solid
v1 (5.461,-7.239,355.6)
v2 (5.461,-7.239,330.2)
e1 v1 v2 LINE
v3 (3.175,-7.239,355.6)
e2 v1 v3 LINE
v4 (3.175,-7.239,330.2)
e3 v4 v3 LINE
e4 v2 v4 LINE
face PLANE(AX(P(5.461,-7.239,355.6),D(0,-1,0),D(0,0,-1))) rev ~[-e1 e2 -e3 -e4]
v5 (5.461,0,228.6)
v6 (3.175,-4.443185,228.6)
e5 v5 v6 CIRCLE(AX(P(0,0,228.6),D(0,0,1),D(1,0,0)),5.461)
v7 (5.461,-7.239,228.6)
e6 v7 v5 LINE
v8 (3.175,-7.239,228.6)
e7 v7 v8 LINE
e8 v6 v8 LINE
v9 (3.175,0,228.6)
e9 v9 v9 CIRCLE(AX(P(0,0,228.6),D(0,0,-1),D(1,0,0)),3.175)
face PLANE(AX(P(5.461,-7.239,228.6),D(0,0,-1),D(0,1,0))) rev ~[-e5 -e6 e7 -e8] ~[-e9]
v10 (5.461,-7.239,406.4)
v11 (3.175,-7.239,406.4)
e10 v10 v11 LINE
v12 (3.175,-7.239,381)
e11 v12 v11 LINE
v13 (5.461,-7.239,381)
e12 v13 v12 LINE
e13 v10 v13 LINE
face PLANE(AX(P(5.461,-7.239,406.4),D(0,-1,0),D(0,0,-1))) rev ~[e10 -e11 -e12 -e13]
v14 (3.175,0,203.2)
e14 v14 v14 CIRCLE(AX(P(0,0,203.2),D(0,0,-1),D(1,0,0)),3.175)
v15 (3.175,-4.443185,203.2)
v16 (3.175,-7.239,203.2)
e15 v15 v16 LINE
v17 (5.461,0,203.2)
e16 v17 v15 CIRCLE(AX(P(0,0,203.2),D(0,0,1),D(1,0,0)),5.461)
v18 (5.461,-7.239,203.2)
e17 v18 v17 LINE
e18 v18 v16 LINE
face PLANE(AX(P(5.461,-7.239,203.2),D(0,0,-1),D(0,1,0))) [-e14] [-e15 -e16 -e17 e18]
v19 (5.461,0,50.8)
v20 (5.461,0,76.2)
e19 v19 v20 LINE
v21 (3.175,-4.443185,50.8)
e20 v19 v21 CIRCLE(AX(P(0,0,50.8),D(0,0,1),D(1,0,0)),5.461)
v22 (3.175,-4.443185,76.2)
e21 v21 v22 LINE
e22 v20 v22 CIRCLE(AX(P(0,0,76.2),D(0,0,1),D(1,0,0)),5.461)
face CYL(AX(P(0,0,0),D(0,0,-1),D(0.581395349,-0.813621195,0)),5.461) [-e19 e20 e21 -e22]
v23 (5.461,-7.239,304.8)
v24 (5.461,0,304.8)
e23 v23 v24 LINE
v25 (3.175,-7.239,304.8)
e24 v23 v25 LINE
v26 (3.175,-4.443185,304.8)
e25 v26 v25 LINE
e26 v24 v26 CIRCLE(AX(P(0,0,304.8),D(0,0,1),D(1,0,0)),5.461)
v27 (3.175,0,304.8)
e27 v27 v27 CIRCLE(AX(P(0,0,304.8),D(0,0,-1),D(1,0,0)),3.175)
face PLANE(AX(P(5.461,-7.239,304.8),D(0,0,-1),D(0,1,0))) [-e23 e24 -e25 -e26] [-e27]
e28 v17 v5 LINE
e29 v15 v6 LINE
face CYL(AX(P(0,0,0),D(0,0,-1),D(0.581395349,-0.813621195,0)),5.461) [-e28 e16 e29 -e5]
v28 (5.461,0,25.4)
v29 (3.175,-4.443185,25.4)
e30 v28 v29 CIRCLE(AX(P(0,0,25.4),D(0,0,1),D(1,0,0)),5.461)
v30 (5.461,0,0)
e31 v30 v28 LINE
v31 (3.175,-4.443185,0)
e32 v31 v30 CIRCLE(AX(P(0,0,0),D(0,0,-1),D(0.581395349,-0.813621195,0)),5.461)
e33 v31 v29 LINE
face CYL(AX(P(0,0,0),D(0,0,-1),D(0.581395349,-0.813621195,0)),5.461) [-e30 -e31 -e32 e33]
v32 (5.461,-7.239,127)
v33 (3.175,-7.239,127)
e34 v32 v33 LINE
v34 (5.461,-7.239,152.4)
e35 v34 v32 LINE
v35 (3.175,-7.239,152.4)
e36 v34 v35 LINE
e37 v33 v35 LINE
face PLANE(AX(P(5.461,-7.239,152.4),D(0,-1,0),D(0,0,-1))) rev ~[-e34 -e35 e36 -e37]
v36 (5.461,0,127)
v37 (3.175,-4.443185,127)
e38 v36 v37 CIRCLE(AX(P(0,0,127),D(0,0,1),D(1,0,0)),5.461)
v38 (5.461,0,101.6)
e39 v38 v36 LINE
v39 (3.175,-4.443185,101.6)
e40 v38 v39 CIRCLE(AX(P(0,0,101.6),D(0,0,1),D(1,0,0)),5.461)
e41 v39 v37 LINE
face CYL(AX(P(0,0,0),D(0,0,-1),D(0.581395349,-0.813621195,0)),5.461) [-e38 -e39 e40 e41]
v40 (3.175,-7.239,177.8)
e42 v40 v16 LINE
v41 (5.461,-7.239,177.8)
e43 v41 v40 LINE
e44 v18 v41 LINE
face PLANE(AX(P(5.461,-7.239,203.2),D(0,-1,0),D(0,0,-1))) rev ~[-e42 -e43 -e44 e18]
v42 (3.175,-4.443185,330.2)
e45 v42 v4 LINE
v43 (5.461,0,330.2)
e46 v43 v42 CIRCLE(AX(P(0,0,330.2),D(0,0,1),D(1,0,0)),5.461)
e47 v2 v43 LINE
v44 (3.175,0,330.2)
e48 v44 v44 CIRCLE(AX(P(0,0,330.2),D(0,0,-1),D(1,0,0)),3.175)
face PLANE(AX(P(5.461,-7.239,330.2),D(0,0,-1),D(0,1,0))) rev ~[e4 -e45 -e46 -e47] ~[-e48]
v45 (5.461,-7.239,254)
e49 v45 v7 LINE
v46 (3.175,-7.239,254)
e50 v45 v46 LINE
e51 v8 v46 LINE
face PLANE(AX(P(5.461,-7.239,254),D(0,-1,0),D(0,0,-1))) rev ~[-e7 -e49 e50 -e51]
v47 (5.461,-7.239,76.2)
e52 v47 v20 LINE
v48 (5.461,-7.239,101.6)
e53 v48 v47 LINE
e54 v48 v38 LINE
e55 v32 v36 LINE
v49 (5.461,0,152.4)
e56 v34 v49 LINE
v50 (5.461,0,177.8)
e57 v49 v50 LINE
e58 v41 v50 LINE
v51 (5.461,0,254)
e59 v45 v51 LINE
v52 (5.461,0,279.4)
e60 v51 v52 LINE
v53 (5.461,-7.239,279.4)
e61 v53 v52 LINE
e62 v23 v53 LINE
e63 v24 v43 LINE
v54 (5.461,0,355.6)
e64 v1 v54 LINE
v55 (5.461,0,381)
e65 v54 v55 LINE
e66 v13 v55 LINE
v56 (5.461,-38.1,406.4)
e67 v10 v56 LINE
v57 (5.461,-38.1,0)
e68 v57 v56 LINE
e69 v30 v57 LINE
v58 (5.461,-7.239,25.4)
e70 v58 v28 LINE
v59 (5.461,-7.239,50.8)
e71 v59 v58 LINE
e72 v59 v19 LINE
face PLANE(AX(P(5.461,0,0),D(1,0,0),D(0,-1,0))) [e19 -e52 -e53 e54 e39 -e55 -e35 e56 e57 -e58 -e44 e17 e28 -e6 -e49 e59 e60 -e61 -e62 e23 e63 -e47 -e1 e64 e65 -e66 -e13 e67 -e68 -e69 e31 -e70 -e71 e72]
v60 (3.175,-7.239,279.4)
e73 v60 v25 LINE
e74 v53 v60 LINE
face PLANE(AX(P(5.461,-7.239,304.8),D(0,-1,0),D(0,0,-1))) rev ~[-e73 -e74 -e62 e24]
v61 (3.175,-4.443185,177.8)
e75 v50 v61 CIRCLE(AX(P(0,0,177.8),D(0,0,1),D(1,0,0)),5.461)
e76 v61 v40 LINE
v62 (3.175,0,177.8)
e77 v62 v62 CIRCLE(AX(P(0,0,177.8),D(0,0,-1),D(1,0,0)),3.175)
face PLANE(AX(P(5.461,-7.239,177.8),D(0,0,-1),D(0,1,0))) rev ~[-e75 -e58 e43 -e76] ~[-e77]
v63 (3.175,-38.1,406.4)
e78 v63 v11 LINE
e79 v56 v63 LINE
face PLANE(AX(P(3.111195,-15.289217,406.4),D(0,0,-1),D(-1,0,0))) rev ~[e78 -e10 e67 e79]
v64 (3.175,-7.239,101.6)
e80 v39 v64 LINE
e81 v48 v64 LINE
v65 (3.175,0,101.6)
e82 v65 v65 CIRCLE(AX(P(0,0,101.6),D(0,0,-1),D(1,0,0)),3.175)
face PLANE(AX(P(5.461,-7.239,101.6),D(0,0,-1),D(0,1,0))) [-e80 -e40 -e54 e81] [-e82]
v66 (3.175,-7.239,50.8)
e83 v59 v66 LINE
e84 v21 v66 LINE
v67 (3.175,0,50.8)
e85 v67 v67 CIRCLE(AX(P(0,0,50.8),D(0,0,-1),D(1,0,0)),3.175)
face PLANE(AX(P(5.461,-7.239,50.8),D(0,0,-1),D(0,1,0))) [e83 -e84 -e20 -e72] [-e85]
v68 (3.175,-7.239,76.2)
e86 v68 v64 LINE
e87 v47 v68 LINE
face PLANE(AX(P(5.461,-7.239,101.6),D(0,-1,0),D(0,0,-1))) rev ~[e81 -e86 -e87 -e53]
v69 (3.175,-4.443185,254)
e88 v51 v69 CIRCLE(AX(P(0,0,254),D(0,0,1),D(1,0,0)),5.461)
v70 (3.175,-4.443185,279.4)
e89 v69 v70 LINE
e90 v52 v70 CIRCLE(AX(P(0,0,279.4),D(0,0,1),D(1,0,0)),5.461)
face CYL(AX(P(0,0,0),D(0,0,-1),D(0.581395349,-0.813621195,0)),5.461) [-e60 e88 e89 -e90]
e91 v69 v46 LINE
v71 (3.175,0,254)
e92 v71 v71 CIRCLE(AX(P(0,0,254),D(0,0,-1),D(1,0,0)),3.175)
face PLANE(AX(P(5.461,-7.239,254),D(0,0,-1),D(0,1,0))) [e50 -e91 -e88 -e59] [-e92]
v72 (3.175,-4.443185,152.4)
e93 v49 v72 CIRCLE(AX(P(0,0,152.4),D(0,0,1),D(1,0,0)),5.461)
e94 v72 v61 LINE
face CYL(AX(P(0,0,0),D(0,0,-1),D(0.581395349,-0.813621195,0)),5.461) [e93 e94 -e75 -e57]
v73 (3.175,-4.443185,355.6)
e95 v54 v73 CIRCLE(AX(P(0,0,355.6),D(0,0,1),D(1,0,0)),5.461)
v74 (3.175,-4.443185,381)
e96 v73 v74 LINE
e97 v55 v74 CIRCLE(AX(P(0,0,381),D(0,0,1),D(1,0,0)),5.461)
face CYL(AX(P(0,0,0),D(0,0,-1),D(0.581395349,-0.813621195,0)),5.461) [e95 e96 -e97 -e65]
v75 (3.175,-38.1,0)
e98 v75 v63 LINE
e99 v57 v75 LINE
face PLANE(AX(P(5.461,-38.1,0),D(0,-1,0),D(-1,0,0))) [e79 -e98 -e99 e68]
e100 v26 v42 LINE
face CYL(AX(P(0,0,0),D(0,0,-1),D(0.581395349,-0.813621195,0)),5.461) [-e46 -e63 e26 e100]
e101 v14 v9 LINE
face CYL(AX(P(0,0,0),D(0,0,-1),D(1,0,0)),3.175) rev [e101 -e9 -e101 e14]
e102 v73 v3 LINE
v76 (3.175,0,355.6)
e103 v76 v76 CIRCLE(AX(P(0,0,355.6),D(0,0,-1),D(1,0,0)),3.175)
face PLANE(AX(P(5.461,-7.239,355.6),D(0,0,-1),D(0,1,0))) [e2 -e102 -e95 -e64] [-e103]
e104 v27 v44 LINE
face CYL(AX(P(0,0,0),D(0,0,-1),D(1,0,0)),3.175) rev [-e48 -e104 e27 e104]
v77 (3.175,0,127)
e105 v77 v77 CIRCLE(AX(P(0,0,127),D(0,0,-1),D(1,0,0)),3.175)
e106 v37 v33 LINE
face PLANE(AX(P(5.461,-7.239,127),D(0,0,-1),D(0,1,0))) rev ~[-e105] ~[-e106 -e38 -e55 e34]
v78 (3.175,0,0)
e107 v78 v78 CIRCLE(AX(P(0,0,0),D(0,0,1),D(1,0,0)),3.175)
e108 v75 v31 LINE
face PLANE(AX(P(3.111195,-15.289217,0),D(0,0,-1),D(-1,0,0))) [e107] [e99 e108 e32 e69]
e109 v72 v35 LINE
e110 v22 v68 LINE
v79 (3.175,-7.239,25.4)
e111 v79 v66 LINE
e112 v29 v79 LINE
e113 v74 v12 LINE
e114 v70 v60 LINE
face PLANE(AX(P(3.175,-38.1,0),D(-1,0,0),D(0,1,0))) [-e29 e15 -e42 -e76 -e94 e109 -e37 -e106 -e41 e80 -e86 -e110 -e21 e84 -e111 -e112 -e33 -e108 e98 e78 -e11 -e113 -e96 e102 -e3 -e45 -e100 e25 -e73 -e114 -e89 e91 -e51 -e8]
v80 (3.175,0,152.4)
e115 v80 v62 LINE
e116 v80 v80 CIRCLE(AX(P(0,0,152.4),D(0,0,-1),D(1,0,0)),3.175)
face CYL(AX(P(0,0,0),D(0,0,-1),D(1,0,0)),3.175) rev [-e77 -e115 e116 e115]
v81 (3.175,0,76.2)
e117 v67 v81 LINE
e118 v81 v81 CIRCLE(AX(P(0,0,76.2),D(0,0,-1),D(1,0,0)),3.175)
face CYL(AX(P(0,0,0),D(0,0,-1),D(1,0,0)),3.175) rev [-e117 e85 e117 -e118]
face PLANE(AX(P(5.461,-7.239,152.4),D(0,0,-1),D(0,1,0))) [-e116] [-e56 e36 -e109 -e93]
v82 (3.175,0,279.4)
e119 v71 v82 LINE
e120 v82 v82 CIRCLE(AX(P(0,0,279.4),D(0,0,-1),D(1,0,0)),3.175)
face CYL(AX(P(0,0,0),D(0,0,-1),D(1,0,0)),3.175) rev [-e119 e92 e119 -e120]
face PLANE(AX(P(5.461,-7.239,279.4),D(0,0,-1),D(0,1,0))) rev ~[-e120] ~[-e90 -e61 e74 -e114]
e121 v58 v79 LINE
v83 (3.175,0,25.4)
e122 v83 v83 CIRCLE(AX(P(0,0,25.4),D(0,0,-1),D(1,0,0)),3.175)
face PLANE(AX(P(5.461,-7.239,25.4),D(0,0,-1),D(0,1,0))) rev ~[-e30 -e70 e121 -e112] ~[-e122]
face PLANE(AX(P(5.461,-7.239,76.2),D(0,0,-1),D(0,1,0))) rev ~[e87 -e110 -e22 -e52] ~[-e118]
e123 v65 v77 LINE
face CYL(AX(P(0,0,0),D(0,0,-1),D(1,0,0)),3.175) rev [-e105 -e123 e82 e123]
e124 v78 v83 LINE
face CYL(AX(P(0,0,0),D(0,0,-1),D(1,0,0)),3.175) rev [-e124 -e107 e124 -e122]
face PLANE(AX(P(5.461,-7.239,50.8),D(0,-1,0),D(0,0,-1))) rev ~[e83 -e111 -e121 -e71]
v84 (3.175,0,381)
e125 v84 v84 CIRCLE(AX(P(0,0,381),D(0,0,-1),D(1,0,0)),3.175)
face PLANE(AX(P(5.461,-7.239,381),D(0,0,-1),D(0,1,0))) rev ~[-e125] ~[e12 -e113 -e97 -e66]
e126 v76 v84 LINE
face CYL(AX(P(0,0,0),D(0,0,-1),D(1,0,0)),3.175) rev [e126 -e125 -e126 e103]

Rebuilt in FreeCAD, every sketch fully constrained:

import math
import FreeCAD as App
import Part
import Sketcher
Q = App.Units.Quantity


def add_polygon(sketch, points):
    """Adds a closed chain of lines whose ends are joined by coincident constraints."""
    first, n = sketch.GeometryCount, len(points)
    for a, b in zip(points, points[1:] + points[:1]):
        sketch.addGeometry(Part.LineSegment(App.Vector(*a, 0), App.Vector(*b, 0)), False)
    for i in range(n):
        sketch.addConstraint(Sketcher.Constraint("Coincident", first + i, 2, first + (i + 1) % n, 1))

doc = App.newDocument("Part")
body = doc.addObject("PartDesign::Body", "Body")

# Sketch on XY plane
sketch1 = body.newObject("Sketcher::SketchObject", "Sketch")
sketch1.AttachmentSupport = (doc.getObject("XY_Plane"), [""])
sketch1.MapMode = "FlatFace"
sketch1.addGeometry([
    Part.LineSegment(App.Vector(5.5, -38.1, 0), App.Vector(5.5, 0, 0)),  # 0
    Part.ArcOfCircle(Part.Circle(App.Vector(0, 0, 0), App.Vector(0, 0, 1), 5.5), math.radians(0), math.radians(306)),  # 1
    Part.LineSegment(App.Vector(3.2, -4.4, 0), App.Vector(3.2, -38.1, 0)),  # 2
    Part.LineSegment(App.Vector(3.2, -38.1, 0), App.Vector(5.5, -38.1, 0)),  # 3
    Part.Circle(App.Vector(0, 0, 0), App.Vector(0, 0, 1), 3.2),  # 4
], False)
sketch1.addConstraint([
    Sketcher.Constraint("Tangent", 0, 2, 1, 1),
    Sketcher.Constraint("Coincident", 1, 2, 2, 1),
    Sketcher.Constraint("Coincident", 2, 2, 3, 1),
    Sketcher.Constraint("Coincident", 3, 2, 0, 1),
    Sketcher.Constraint("Vertical", 0),
    Sketcher.Constraint("Vertical", 2),
    Sketcher.Constraint("Horizontal", 3),
    Sketcher.Constraint("Coincident", 1, 3, -1, 1),
    Sketcher.Constraint("Coincident", 4, 3, -1, 1),
    Sketcher.Constraint("Diameter", 4, Q("0.25 in")),
    Sketcher.Constraint("DistanceY", 0, 1, 0, 2, Q("1.5 in")),
    Sketcher.Constraint("Radius", 1, Q("0.215 in")),
    Sketcher.Constraint("DistanceX", 3, 1, 3, 2, Q("0.09 in")),
])
pad1 = body.newObject("PartDesign::Pad", "Pad")
pad1.Profile = sketch1
pad1.Length = Q("16 in")

# Sketch on YZ plane
sketch2 = body.newObject("Sketcher::SketchObject", "Sketch001")
sketch2.AttachmentSupport = (doc.getObject("YZ_Plane"), [""])
sketch2.MapMode = "FlatFace"
sketch2.AttachmentOffset = App.Placement(App.Vector(0, 0, 0.215 * 25.4), App.Rotation())
add_polygon(sketch2, [(5, 406), (-7, 406), (-7, 381), (5, 381)])  # lines 0-3
sketch2.addConstraint([
    Sketcher.Constraint("Horizontal", 0),
    Sketcher.Constraint("Vertical", 1),
    Sketcher.Constraint("Horizontal", 2),
    Sketcher.Constraint("Vertical", 3),
    Sketcher.Constraint("DistanceY", 1, 2, 1, 1, Q("1 in")),
    Sketcher.Constraint("DistanceX", 0, 2, 0, 1, Q("0.5 in")),
    Sketcher.Constraint("DistanceY", -1, 1, 0, 2, Q("16 in")),
    Sketcher.Constraint("DistanceX", 0, 2, -1, 1, Q("0.285 in")),
])
pocket1 = body.newObject("PartDesign::Pocket", "Pocket")
pocket1.Profile = sketch2
pocket1.Type = "ThroughAll"
doc.recompute()

linearpattern = body.newObject("PartDesign::LinearPattern", "LinearPattern")
linearpattern.Originals = [pocket1]
linearpattern.Direction = (doc.getObject("Z_Axis"), [""])
linearpattern.Mode = "offset"
linearpattern.Offset = Q("2 in")
linearpattern.Occurrences = 8
linearpattern.Reversed = True
body.Tip = linearpattern

doc.recompute()
